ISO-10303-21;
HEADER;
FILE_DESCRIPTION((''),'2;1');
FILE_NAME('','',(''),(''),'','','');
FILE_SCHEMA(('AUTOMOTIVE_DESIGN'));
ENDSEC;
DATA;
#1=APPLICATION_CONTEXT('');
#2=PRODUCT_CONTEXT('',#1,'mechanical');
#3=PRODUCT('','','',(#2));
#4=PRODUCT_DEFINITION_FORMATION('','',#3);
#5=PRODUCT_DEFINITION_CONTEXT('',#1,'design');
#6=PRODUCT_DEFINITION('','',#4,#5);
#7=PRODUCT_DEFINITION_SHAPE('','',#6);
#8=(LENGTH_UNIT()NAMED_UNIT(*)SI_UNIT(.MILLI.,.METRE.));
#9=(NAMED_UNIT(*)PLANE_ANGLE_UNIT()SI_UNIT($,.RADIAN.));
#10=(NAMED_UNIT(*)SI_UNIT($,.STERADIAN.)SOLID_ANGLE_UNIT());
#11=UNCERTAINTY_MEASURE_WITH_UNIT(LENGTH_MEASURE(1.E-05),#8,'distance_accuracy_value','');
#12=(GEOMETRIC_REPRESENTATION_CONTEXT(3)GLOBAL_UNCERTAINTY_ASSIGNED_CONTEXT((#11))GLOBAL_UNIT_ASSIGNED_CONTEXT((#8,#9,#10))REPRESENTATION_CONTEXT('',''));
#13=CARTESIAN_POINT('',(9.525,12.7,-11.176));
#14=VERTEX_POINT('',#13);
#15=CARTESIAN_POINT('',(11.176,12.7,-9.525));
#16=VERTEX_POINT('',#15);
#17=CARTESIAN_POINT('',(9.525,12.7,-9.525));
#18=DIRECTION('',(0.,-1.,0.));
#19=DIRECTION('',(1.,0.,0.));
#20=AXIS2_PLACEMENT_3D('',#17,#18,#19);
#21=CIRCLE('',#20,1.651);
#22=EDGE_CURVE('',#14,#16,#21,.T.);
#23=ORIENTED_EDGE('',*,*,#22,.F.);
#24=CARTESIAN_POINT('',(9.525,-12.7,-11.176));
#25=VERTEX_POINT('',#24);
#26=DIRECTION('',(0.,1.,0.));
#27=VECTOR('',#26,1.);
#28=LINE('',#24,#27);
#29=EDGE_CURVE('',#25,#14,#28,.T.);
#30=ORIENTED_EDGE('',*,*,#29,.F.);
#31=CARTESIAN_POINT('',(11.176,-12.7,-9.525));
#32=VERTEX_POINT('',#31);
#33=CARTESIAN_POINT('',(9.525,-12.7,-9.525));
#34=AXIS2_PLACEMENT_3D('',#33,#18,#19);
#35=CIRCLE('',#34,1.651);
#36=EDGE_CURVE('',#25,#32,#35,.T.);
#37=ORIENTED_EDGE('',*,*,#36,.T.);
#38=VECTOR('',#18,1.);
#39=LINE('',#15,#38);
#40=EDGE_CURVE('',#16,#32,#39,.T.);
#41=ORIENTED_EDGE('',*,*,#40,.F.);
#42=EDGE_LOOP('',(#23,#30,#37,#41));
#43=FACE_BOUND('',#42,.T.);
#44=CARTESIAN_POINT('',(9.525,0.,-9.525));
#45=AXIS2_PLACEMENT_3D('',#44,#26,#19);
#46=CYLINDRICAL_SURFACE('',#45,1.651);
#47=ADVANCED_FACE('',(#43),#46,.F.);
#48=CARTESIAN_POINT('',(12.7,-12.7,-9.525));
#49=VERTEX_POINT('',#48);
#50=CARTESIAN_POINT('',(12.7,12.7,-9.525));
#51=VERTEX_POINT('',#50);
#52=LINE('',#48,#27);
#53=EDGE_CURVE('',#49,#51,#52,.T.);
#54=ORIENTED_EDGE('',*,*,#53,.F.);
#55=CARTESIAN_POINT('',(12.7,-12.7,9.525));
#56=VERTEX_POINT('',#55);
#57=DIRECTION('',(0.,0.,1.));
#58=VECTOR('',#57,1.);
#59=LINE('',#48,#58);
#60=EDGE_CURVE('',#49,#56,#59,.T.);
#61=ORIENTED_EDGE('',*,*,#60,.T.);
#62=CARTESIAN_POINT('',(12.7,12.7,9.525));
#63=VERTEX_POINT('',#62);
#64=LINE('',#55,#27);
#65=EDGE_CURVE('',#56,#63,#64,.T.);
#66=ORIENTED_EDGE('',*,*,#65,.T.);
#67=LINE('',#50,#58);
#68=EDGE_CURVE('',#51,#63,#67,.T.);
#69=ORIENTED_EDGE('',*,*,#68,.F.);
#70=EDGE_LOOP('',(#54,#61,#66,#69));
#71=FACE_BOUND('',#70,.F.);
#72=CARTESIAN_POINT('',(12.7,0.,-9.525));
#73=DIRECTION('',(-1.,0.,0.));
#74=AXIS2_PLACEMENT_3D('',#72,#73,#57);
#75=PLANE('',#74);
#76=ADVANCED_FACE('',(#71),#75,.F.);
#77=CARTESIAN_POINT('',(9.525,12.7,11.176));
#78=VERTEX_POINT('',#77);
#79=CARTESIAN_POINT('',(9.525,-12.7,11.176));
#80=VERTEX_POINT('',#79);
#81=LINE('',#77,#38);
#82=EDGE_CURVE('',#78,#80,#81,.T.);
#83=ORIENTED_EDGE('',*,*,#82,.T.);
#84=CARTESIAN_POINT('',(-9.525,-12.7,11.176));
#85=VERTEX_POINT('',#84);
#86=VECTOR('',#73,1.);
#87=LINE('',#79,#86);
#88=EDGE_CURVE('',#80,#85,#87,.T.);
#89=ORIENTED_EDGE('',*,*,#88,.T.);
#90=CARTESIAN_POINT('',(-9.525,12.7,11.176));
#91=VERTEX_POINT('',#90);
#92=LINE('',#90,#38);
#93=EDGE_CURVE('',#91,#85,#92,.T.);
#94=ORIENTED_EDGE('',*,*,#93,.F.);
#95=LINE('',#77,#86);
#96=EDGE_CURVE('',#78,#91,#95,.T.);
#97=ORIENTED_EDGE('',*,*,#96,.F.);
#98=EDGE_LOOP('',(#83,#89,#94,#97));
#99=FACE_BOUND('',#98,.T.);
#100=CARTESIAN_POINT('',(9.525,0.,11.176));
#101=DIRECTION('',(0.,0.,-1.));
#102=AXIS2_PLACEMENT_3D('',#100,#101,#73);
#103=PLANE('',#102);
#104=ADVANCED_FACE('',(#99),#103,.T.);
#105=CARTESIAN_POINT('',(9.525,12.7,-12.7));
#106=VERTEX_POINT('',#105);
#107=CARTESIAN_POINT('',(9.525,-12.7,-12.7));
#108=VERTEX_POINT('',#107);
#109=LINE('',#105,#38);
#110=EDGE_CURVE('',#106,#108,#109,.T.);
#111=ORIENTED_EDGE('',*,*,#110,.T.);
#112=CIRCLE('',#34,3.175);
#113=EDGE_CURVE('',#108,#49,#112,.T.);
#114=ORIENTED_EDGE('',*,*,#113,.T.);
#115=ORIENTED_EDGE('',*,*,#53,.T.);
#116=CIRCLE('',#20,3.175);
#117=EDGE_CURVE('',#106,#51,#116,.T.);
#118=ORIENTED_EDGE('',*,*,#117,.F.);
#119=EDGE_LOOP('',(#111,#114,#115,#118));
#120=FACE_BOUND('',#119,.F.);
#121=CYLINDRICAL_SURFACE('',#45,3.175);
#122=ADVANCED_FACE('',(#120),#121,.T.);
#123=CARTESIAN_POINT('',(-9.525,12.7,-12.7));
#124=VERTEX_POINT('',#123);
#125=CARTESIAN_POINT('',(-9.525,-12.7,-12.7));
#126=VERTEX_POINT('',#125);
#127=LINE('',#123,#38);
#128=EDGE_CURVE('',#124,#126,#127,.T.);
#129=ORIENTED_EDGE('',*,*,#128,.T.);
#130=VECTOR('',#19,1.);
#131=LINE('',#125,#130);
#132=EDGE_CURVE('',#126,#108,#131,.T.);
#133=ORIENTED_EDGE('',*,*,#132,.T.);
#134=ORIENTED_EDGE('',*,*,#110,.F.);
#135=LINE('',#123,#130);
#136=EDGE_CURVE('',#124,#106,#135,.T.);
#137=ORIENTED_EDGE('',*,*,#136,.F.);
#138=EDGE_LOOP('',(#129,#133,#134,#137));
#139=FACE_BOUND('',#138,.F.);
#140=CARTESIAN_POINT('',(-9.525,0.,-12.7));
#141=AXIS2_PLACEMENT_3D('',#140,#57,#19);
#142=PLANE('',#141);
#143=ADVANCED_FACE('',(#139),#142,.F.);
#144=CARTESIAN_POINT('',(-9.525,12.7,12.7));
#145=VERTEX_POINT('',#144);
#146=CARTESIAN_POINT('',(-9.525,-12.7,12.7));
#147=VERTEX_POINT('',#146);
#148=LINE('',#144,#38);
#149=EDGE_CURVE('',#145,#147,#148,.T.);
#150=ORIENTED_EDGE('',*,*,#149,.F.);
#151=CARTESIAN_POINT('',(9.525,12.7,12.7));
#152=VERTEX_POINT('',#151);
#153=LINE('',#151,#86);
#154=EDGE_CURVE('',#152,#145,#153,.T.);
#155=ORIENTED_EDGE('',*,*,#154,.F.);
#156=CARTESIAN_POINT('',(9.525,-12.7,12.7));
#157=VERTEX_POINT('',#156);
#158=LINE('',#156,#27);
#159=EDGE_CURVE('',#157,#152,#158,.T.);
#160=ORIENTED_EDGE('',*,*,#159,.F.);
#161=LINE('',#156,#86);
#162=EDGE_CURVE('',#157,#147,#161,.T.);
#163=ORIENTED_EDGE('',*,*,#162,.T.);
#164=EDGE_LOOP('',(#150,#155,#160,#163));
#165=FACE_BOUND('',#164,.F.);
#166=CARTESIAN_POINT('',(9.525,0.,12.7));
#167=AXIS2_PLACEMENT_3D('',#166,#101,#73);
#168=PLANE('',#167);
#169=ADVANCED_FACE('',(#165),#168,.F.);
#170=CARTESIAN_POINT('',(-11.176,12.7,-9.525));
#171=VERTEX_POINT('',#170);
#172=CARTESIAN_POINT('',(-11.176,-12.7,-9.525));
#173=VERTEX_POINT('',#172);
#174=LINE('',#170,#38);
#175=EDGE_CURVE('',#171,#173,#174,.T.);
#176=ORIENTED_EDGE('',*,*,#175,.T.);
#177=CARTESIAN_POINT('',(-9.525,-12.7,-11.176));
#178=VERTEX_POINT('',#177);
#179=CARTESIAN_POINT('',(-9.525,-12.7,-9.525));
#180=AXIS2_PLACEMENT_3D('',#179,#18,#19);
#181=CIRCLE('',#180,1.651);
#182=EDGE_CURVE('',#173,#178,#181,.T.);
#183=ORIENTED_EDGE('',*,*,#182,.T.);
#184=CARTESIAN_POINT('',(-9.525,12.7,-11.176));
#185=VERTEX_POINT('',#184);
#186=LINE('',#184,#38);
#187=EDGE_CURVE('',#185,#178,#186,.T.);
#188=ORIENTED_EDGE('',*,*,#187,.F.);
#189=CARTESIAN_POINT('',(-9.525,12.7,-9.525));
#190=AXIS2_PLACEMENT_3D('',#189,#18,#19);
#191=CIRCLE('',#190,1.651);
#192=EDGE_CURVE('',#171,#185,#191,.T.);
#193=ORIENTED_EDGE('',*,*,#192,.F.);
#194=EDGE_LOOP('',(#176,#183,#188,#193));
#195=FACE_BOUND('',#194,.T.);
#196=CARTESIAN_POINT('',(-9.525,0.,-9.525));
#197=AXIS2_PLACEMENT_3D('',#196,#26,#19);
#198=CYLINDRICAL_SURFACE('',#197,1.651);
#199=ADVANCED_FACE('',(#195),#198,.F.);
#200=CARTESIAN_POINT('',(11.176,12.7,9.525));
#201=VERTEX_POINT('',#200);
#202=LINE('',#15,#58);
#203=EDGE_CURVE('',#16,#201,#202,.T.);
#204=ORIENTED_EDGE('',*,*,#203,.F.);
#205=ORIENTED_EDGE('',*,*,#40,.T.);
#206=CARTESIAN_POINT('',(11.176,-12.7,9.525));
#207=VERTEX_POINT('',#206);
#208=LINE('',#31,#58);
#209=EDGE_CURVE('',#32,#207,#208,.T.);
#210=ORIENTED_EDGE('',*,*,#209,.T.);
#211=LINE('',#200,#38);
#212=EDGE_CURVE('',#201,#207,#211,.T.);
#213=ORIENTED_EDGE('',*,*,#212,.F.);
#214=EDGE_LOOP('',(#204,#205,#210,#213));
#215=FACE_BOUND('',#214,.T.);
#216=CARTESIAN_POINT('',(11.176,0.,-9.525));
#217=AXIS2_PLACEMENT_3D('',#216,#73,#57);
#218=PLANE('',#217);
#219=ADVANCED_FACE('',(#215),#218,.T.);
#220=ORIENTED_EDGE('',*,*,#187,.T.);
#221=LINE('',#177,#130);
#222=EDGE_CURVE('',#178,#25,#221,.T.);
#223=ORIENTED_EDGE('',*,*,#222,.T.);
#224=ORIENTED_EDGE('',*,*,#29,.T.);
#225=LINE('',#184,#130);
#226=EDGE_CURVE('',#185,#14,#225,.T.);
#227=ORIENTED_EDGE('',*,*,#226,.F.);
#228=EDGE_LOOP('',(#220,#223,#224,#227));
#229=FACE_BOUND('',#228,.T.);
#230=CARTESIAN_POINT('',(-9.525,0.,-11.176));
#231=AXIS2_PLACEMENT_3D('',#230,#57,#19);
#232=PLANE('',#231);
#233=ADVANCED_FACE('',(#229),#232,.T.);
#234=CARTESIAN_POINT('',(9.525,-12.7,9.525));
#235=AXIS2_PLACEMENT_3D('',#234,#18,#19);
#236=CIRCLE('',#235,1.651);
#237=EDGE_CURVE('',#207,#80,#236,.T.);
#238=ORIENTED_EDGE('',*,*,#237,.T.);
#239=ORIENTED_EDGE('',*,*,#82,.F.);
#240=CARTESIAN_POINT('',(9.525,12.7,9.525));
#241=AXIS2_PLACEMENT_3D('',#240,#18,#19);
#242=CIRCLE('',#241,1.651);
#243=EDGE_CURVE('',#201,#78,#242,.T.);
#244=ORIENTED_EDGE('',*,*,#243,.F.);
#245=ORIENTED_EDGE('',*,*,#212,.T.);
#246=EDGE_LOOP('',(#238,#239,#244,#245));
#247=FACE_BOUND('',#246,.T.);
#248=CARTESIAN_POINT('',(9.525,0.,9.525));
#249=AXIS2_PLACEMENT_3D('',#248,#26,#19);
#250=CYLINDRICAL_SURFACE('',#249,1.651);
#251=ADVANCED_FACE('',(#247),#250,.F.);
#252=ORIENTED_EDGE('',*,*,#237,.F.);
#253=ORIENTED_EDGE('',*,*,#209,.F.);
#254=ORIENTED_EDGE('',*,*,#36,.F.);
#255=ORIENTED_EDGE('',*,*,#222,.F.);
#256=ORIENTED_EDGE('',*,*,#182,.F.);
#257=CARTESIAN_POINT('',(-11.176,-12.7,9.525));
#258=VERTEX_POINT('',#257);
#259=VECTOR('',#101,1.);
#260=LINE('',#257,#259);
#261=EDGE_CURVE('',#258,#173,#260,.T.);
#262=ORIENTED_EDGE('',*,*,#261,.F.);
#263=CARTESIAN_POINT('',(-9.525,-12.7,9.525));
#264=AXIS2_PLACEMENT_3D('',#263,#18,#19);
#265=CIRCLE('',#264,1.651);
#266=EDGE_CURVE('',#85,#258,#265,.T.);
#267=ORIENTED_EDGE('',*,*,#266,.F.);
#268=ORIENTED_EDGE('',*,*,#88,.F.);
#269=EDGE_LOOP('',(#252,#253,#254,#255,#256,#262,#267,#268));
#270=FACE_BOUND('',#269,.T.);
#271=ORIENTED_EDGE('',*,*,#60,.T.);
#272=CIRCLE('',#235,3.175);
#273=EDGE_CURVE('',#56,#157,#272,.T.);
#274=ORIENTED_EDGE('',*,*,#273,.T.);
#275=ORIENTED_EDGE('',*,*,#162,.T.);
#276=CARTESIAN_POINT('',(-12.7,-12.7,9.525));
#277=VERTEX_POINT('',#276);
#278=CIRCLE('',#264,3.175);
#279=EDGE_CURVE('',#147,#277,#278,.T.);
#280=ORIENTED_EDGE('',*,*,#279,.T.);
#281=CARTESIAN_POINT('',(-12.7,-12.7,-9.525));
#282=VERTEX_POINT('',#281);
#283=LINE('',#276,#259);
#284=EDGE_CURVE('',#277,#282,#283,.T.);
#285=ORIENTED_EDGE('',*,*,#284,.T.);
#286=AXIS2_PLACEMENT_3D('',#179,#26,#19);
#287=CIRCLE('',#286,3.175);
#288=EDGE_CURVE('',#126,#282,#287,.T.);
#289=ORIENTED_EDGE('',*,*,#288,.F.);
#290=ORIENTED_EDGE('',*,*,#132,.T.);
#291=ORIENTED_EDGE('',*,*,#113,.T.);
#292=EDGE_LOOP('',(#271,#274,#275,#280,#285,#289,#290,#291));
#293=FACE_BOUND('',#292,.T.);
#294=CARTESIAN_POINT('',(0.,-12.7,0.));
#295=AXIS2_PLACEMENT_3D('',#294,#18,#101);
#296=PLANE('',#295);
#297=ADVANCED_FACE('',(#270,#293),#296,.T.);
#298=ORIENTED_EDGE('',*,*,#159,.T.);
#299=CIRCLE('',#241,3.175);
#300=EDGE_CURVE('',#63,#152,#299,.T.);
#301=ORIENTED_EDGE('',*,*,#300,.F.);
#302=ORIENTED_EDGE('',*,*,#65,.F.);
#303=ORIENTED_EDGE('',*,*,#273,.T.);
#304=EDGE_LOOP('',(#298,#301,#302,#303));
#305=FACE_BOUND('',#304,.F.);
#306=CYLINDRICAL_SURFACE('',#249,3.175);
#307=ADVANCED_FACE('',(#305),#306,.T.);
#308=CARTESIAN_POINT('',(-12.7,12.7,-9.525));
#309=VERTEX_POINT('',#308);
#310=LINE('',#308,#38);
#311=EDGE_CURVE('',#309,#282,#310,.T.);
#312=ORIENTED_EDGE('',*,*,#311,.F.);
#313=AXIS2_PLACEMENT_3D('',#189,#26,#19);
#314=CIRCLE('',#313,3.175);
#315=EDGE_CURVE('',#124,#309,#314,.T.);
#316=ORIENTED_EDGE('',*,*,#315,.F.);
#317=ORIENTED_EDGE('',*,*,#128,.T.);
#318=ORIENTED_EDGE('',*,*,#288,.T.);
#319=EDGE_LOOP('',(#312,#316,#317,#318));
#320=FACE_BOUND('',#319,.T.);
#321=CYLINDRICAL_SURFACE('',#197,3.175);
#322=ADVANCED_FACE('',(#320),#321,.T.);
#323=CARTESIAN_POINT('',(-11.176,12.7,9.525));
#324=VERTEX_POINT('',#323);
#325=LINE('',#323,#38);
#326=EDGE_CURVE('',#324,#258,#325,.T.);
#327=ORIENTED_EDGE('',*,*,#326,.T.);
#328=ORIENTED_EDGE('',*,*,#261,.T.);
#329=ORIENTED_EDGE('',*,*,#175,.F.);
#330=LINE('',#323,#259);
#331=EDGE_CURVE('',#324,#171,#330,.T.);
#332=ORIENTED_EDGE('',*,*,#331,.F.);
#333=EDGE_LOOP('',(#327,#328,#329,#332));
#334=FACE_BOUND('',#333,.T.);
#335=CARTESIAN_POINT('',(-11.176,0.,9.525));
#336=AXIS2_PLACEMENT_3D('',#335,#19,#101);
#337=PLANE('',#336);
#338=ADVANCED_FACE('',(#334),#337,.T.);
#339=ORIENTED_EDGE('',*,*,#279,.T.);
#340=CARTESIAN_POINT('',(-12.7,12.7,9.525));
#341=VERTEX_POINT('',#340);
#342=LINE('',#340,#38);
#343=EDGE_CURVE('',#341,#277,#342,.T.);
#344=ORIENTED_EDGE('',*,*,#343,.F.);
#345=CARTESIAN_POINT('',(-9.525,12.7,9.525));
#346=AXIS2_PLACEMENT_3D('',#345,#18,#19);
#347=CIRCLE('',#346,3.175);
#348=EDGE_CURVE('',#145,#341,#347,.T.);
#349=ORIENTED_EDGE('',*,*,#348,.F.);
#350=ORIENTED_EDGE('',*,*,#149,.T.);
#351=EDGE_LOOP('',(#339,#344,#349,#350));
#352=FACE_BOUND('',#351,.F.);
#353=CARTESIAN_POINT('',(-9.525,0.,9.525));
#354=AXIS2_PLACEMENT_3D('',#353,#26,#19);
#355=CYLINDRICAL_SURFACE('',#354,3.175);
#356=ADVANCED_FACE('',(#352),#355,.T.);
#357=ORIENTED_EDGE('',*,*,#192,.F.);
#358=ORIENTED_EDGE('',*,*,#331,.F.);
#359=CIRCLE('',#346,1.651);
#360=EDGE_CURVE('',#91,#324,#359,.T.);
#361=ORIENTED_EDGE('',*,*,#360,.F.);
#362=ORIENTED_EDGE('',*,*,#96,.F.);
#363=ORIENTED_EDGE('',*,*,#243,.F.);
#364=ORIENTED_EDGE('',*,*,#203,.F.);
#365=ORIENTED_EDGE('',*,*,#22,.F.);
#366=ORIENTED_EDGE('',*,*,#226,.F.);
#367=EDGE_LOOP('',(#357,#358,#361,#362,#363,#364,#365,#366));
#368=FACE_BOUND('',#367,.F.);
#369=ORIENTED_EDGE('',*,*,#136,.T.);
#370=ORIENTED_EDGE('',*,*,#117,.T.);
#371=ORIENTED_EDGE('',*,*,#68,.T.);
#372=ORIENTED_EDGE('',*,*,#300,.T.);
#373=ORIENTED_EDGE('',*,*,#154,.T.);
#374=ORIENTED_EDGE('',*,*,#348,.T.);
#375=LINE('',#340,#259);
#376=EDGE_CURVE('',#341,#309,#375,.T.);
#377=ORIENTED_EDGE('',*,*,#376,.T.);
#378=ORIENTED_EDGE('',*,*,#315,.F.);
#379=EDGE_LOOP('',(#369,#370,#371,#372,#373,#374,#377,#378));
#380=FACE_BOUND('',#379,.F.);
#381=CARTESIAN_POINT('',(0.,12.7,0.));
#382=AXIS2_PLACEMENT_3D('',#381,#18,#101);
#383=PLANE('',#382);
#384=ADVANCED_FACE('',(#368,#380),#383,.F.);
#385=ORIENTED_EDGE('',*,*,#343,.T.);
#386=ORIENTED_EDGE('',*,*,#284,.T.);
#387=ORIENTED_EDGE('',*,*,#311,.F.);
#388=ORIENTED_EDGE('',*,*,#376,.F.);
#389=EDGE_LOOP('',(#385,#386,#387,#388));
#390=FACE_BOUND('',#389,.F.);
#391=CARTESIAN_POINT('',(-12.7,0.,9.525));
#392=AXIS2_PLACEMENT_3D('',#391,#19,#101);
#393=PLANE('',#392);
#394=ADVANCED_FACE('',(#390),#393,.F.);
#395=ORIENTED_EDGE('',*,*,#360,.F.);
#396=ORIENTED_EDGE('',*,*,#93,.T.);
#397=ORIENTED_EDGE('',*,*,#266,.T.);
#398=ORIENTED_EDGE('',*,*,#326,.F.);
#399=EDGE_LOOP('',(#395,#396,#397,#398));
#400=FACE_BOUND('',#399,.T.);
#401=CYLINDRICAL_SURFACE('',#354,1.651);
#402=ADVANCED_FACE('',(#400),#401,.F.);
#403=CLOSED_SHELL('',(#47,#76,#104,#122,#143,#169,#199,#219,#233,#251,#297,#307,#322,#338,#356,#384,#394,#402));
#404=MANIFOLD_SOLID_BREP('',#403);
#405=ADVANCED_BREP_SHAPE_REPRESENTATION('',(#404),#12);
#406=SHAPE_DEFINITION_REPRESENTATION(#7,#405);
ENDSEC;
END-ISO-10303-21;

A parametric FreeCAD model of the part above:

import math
import FreeCAD as App
import Part
import Sketcher
Q = App.Units.Quantity

doc = App.newDocument("Part")
body = doc.addObject("PartDesign::Body", "Body")

sketch1 = body.newObject("Sketcher::SketchObject", "Sketch")
sketch1.AttachmentSupport = (doc.getObject("XZ_Plane"), [""])
sketch1.MapMode = "FlatFace"
sketch1.addGeometry(Part.ArcOfCircle(Part.Circle(App.Vector(9.525, 9.525, 0), App.Vector(0, 0, 1), 3.175), math.radians(0), math.radians(90)), False)
sketch1.addGeometry(Part.LineSegment(App.Vector(9.525, 12.7, 0), App.Vector(-9.525, 12.7, 0)), False)
sketch1.addGeometry(Part.ArcOfCircle(Part.Circle(App.Vector(-9.525, 9.525, 0), App.Vector(0, 0, 1), 3.175), math.radians(90), math.radians(180)), False)
sketch1.addGeometry(Part.LineSegment(App.Vector(-12.7, 9.525, 0), App.Vector(-12.7, -9.525, 0)), False)
sketch1.addGeometry(Part.ArcOfCircle(Part.Circle(App.Vector(-9.525, -9.525, 0), App.Vector(0, 0, 1), 3.175), math.radians(180), math.radians(270)), False)
sketch1.addGeometry(Part.LineSegment(App.Vector(-9.525, -12.7, 0), App.Vector(9.525, -12.7, 0)), False)
sketch1.addGeometry(Part.ArcOfCircle(Part.Circle(App.Vector(9.525, -9.525, 0), App.Vector(0, 0, 1), 3.175), math.radians(-90), math.radians(0)), False)
sketch1.addGeometry(Part.LineSegment(App.Vector(12.7, -9.525, 0), App.Vector(12.7, 9.525, 0)), False)
sketch1.addGeometry(Part.LineSegment(App.Vector(-9.525, 11.176, 0), App.Vector(9.525, 11.176, 0)), False)
sketch1.addGeometry(Part.ArcOfCircle(Part.Circle(App.Vector(9.525, 9.525, 0), App.Vector(0, 0, 1), 1.651), math.radians(0), math.radians(90)), False)
sketch1.addGeometry(Part.LineSegment(App.Vector(11.176, 9.525, 0), App.Vector(11.176, -9.525, 0)), False)
sketch1.addGeometry(Part.ArcOfCircle(Part.Circle(App.Vector(9.525, -9.525, 0), App.Vector(0, 0, 1), 1.651), math.radians(-90), math.radians(0)), False)
sketch1.addGeometry(Part.LineSegment(App.Vector(9.525, -11.176, 0), App.Vector(-9.525, -11.176, 0)), False)
sketch1.addGeometry(Part.ArcOfCircle(Part.Circle(App.Vector(-9.525, -9.525, 0), App.Vector(0, 0, 1), 1.651), math.radians(180), math.radians(270)), False)
sketch1.addGeometry(Part.LineSegment(App.Vector(-11.176, -9.525, 0), App.Vector(-11.176, 9.525, 0)), False)
sketch1.addGeometry(Part.ArcOfCircle(Part.Circle(App.Vector(-9.525, 9.525, 0), App.Vector(0, 0, 1), 1.651), math.radians(90), math.radians(180)), False)
sketch1.addConstraint(Sketcher.Constraint("Tangent", 0, 2, 1, 1))
sketch1.addConstraint(Sketcher.Constraint("Tangent", 1, 2, 2, 1))
sketch1.addConstraint(Sketcher.Constraint("Tangent", 2, 2, 3, 1))
sketch1.addConstraint(Sketcher.Constraint("Tangent", 3, 2, 4, 1))
sketch1.addConstraint(Sketcher.Constraint("Tangent", 4, 2, 5, 1))
sketch1.addConstraint(Sketcher.Constraint("Tangent", 5, 2, 6, 1))
sketch1.addConstraint(Sketcher.Constraint("Tangent", 6, 2, 7, 1))
sketch1.addConstraint(Sketcher.Constraint("Tangent", 7, 2, 0, 1))
sketch1.addConstraint(Sketcher.Constraint("Tangent", 8, 2, 9, 2))
sketch1.addConstraint(Sketcher.Constraint("Tangent", 9, 1, 10, 1))
sketch1.addConstraint(Sketcher.Constraint("Tangent", 10, 2, 11, 2))
sketch1.addConstraint(Sketcher.Constraint("Tangent", 11, 1, 12, 1))
sketch1.addConstraint(Sketcher.Constraint("Tangent", 12, 2, 13, 2))
sketch1.addConstraint(Sketcher.Constraint("Tangent", 13, 1, 14, 1))
sketch1.addConstraint(Sketcher.Constraint("Tangent", 14, 2, 15, 2))
sketch1.addConstraint(Sketcher.Constraint("Tangent", 15, 1, 8, 1))
sketch1.addConstraint(Sketcher.Constraint("Horizontal", 1))
sketch1.addConstraint(Sketcher.Constraint("Vertical", 3))
sketch1.addConstraint(Sketcher.Constraint("Horizontal", 5))
sketch1.addConstraint(Sketcher.Constraint("Vertical", 7))
sketch1.addConstraint(Sketcher.Constraint("Horizontal", 8))
sketch1.addConstraint(Sketcher.Constraint("Vertical", 10))
sketch1.addConstraint(Sketcher.Constraint("Horizontal", 12))
sketch1.addConstraint(Sketcher.Constraint("Vertical", 14))
sketch1.addConstraint(Sketcher.Constraint("Coincident", 9, 3, 0, 3))
sketch1.addConstraint(Sketcher.Constraint("Coincident", 11, 3, 6, 3))
sketch1.addConstraint(Sketcher.Constraint("Coincident", 13, 3, 4, 3))
sketch1.addConstraint(Sketcher.Constraint("Equal", 0, 2))
sketch1.addConstraint(Sketcher.Constraint("Equal", 2, 4))
sketch1.addConstraint(Sketcher.Constraint("Equal", 4, 6))
sketch1.addConstraint(Sketcher.Constraint("Equal", 13, 15))
sketch1.addConstraint(Sketcher.Constraint("Symmetric", 0, 3, 4, 3, -1, 1))
sketch1.addConstraint(Sketcher.Constraint("Equal", 12, 3))
sketch1.addConstraint(Sketcher.Constraint("Radius", 0, Q("0.125 in")))
sketch1.addConstraint(Sketcher.Constraint("Radius", 9, Q("0.065 in")))
sketch1.addConstraint(Sketcher.Constraint("DistanceX", 1, 2, 1, 1, Q("0.75 in")))
pad1 = body.newObject("PartDesign::Pad", "Pad")
pad1.Profile = sketch1
pad1.Length = Q("1 in")
pad1.Midplane = True

doc.recompute()
